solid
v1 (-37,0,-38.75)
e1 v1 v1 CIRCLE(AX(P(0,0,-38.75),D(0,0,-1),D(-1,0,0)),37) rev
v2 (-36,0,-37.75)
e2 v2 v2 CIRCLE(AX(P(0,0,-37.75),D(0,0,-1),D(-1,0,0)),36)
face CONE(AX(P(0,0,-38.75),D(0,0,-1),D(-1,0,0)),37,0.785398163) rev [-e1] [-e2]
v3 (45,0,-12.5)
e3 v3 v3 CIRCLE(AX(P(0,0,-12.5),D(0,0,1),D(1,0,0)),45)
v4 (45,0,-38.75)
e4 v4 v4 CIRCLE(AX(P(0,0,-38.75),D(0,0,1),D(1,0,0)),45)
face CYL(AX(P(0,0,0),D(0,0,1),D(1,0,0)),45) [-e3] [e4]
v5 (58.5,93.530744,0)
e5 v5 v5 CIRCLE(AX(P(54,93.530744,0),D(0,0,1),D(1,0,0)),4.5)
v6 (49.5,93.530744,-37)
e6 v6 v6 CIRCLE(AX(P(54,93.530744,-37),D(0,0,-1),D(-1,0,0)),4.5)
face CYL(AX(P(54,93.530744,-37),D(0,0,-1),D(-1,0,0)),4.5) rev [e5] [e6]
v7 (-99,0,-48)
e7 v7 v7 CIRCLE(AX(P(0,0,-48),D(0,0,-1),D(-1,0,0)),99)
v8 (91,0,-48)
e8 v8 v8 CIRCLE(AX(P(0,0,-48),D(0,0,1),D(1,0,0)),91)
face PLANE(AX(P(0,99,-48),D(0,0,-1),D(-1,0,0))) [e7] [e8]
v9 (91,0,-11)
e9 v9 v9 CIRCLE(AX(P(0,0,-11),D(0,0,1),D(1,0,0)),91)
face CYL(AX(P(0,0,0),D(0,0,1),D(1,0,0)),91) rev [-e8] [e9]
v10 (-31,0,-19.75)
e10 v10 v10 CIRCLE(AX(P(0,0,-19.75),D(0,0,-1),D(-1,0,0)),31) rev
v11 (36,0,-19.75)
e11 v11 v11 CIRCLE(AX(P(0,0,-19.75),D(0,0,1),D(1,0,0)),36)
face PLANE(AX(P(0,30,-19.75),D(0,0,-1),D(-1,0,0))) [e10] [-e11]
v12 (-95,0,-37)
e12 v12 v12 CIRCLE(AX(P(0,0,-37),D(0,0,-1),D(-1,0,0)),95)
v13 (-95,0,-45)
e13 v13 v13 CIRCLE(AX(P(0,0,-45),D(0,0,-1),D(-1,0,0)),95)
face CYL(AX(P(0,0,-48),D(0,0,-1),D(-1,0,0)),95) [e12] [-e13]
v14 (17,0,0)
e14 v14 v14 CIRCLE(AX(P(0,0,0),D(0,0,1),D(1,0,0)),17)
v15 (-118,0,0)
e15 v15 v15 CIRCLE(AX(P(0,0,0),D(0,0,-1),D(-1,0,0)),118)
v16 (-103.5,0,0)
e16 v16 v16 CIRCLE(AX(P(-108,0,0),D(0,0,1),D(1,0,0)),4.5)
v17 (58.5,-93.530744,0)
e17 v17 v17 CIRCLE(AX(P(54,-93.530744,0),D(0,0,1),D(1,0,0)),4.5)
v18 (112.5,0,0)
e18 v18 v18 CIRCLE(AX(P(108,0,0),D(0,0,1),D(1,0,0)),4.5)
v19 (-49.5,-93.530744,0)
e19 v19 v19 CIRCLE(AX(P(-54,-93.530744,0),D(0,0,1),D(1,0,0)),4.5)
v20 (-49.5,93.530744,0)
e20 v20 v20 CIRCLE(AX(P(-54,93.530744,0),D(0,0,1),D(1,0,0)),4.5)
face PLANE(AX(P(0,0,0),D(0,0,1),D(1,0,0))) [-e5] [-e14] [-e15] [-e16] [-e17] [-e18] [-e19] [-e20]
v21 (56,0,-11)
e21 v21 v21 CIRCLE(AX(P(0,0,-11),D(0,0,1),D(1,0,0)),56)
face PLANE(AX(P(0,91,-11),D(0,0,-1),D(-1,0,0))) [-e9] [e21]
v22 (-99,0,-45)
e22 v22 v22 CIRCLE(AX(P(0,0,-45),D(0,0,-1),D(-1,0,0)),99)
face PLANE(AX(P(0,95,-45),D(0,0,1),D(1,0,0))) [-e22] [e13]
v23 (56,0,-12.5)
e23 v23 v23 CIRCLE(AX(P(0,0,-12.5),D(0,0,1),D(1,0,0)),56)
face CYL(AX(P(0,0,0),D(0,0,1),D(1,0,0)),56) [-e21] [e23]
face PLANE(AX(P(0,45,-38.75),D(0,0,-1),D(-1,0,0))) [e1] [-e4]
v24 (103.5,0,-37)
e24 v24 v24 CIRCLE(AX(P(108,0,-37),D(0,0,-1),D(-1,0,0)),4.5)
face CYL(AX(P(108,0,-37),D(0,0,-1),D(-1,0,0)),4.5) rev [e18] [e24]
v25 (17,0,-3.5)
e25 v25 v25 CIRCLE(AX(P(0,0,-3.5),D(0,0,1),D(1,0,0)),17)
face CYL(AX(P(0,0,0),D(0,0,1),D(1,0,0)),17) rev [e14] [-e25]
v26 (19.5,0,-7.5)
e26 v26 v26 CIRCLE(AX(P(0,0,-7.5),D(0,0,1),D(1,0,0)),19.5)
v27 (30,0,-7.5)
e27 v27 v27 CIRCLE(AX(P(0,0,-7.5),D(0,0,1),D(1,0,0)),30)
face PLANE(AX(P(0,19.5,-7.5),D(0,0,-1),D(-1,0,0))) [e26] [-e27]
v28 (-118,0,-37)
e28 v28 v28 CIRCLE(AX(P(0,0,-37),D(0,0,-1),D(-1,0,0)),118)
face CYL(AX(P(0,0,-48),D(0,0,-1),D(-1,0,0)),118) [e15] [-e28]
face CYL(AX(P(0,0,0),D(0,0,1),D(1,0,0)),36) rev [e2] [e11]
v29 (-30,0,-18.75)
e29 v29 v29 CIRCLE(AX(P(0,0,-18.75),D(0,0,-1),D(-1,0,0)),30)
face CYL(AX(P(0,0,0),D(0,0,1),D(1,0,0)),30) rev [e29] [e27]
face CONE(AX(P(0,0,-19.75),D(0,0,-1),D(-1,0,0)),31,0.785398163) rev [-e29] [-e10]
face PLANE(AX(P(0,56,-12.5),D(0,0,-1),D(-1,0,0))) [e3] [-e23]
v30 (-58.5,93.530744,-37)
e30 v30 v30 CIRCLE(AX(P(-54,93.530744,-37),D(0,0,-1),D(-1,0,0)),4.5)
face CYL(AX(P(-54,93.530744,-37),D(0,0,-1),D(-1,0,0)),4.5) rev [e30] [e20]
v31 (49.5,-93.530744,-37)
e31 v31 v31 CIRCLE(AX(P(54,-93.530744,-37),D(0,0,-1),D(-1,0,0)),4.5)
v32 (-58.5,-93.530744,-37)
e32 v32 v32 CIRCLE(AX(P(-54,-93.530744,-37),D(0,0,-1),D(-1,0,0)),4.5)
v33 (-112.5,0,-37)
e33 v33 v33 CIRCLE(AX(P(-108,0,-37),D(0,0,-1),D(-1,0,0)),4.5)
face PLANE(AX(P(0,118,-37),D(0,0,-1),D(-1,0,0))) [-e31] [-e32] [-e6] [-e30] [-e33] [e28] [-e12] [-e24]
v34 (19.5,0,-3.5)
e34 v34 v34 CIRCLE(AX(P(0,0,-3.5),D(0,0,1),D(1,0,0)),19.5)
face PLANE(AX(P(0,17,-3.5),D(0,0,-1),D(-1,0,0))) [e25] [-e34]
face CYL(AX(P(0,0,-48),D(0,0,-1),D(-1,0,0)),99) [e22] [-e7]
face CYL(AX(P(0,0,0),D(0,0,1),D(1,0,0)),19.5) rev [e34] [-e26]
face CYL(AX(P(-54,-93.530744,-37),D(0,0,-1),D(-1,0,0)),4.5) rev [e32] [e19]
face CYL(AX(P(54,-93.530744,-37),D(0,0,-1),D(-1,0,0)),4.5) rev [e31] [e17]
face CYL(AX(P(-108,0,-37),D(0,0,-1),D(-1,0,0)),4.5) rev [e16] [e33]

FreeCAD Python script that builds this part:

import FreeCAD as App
import Part
import Sketcher
Q = App.Units.Quantity


def edges_at(feature, points):
    """Names of the edges that pass closest to the given points."""
    edges = feature.Shape.Edges
    near = lambda p: min(range(len(edges)), key=lambda i: edges[i].distToShape(Part.Vertex(*p))[0])
    return sorted({f"Edge{near(p) + 1}" for p in points})


def add_polygon(sketch, points):
    """Adds a closed chain of lines whose ends are joined by coincident constraints."""
    first, n = sketch.GeometryCount, len(points)
    for a, b in zip(points, points[1:] + points[:1]):
        sketch.addGeometry(Part.LineSegment(App.Vector(*a, 0), App.Vector(*b, 0)), False)
    for i in range(n):
        sketch.addConstraint(Sketcher.Constraint("Coincident", first + i, 2, first + (i + 1) % n, 1))

doc = App.newDocument("Part")
body = doc.addObject("PartDesign::Body", "Body")

sketch1 = body.newObject("Sketcher::SketchObject", "Sketch")
sketch1.AttachmentSupport = (doc.getObject("YZ_Plane"), [""])
sketch1.MapMode = "FlatFace"
add_polygon(sketch1, [(118, 0), (0, 0), (0, -48), (99, -48), (99, -45), (95, -45), (95, -37), (118, -37)])
sketch1.addConstraint([
    Sketcher.Constraint("Horizontal", 0),
    Sketcher.Constraint("Vertical", 1),
    Sketcher.Constraint("Horizontal", 2),
    Sketcher.Constraint("Vertical", 3),
    Sketcher.Constraint("Horizontal", 4),
    Sketcher.Constraint("Vertical", 5),
    Sketcher.Constraint("Horizontal", 6),
    Sketcher.Constraint("Vertical", 7),
    Sketcher.Constraint("Coincident", 0, 2, -1, 1),
    Sketcher.Constraint("DistanceX", 0, 2, 0, 1, Q("118 mm")),
    Sketcher.Constraint("DistanceX", 2, 1, 2, 2, Q("99 mm")),
    Sketcher.Constraint("DistanceX", 4, 2, 4, 1, Q("4 mm")),
    Sketcher.Constraint("DistanceY", 1, 2, 1, 1, Q("48 mm")),
    Sketcher.Constraint("DistanceY", 3, 1, 3, 2, Q("3 mm")),
    Sketcher.Constraint("DistanceY", 5, 1, 5, 2, Q("8 mm")),
])
revolution = body.newObject("PartDesign::Revolution", "Revolution")
revolution.Profile = sketch1
revolution.ReferenceAxis = (sketch1, ["V_Axis"])
revolution.Angle = 360

sketch2 = body.newObject("Sketcher::SketchObject", "Sketch001")
sketch2.AttachmentSupport = (doc.getObject("YZ_Plane"), [""])
sketch2.MapMode = "FlatFace"
add_polygon(sketch2, [(0, -48), (91, -48), (91, -11), (56, -11), (56, -12.5), (45, -12.5), (45, -38.8), (0, -38.8)])
sketch2.addConstraint([
    Sketcher.Constraint("Horizontal", 0),
    Sketcher.Constraint("Vertical", 1),
    Sketcher.Constraint("Horizontal", 2),
    Sketcher.Constraint("Vertical", 3),
    Sketcher.Constraint("Horizontal", 4),
    Sketcher.Constraint("Vertical", 5),
    Sketcher.Constraint("Horizontal", 6),
    Sketcher.Constraint("Vertical", 7),
    Sketcher.Constraint("PointOnObject", 6, 2, -2),
    Sketcher.Constraint("DistanceX", 0, 1, 0, 2, Q("91 mm")),
    Sketcher.Constraint("DistanceX", 2, 2, 2, 1, Q("35 mm")),
    Sketcher.Constraint("DistanceX", 4, 2, 4, 1, Q("11 mm")),
    Sketcher.Constraint("DistanceY", 1, 1, 1, 2, Q("37 mm")),
    Sketcher.Constraint("DistanceY", 3, 2, 3, 1, Q("1.5 mm")),
    Sketcher.Constraint("DistanceY", 0, 2, -1, 1, Q("48 mm")),
    Sketcher.Constraint("DistanceY", 5, 2, 5, 1, Q("26.25 mm")),
])
groove = body.newObject("PartDesign::Groove", "Groove")
groove.Profile = sketch2
groove.ReferenceAxis = (sketch2, ["V_Axis"])
groove.Angle = 360

sketch3 = body.newObject("Sketcher::SketchObject", "Sketch002")
sketch3.AttachmentSupport = (doc.getObject("YZ_Plane"), [""])
sketch3.MapMode = "FlatFace"
add_polygon(sketch3, [(17, 0), (0, 0), (0, -38.8), (36, -38.8), (36, -19.8), (30, -19.8), (30, -7.5), (19.5, -7.5), (19.5, -3.5), (17, -3.5)])
sketch3.addConstraint([
    Sketcher.Constraint("Horizontal", 0),
    Sketcher.Constraint("Vertical", 1),
    Sketcher.Constraint("Horizontal", 2),
    Sketcher.Constraint("Vertical", 3),
    Sketcher.Constraint("Horizontal", 4),
    Sketcher.Constraint("Vertical", 5),
    Sketcher.Constraint("Horizontal", 6),
    Sketcher.Constraint("Vertical", 7),
    Sketcher.Constraint("Horizontal", 8),
    Sketcher.Constraint("Vertical", 9),
    Sketcher.Constraint("Coincident", 0, 2, -1, 1),
    Sketcher.Constraint("DistanceX", 0, 2, 0, 1, Q("17 mm")),
    Sketcher.Constraint("DistanceX", 2, 1, 2, 2, Q("36 mm")),
    Sketcher.Constraint("DistanceX", 4, 2, 4, 1, Q("6 mm")),
    Sketcher.Constraint("DistanceY", 3, 1, 3, 2, Q("19 mm")),
    Sketcher.Constraint("DistanceY", 7, 1, 7, 2, Q("4 mm")),
    Sketcher.Constraint("DistanceX", 6, 2, 6, 1, Q("10.5 mm")),
    Sketcher.Constraint("DistanceY", 9, 1, 9, 2, Q("3.5 mm")),
    Sketcher.Constraint("DistanceY", 1, 2, 1, 1, Q("38.75 mm")),
])
groove2 = body.newObject("PartDesign::Groove", "Groove001")
groove2.Profile = sketch3
groove2.ReferenceAxis = (sketch3, ["V_Axis"])
groove2.Angle = 360

sketch4 = body.newObject("Sketcher::SketchObject", "Sketch003")
sketch4.AttachmentSupport = (doc.getObject("XY_Plane"), [""])
sketch4.MapMode = "FlatFace"
sketch4.AttachmentOffset = App.Placement(App.Vector(0, 0, -37), App.Rotation())
sketch4.addGeometry([
    Part.Circle(App.Vector(-54, 93.5, 0), App.Vector(0, 0, 1), 4.5),
    Part.Circle(App.Vector(-108, 0, 0), App.Vector(0, 0, 1), 4.5),
    Part.Circle(App.Vector(-54, -93.5, 0), App.Vector(0, 0, 1), 4.5),
    Part.Circle(App.Vector(54, -93.5, 0), App.Vector(0, 0, 1), 4.5),
    Part.Circle(App.Vector(108, 0, 0), App.Vector(0, 0, 1), 4.5),
    Part.Circle(App.Vector(54, 93.5, 0), App.Vector(0, 0, 1), 4.5),
], False)
sketch4.addConstraint([
    Sketcher.Constraint("Equal", 0, 1),
    Sketcher.Constraint("Equal", 1, 2),
    Sketcher.Constraint("Equal", 2, 3),
    Sketcher.Constraint("Equal", 3, 4),
    Sketcher.Constraint("Equal", 4, 5),
    Sketcher.Constraint("Symmetric", 0, 3, 3, 3, -1, 1),
    Sketcher.Constraint("Symmetric", 1, 3, 4, 3, -1, 1),
    Sketcher.Constraint("Symmetric", 2, 3, 5, 3, -1, 1),
    Sketcher.Constraint("Symmetric", 2, 3, 3, 3, -2),
    Sketcher.Constraint("PointOnObject", 1, 3, -1),
    Sketcher.Constraint("Diameter", 0, Q("9 mm")),
    Sketcher.Constraint("DistanceX", 0, 3, -1, 1, Q("54 mm")),
    Sketcher.Constraint("DistanceX", 1, 3, -1, 1, Q("108 mm")),
    Sketcher.Constraint("DistanceY", -1, 1, 0, 3, Q("93.530744 mm")),
])
doc.recompute()
hole = body.newObject("PartDesign::Hole", "Hole")
hole.Profile = sketch4
hole.ThreadType = "None"
hole.Diameter = 9
hole.DepthType = "ThroughAll"
hole.Reversed = True
doc.recompute()

chamfer = body.newObject("PartDesign::Chamfer", "Chamfer")
chamfer.Base = (hole, edges_at(hole, [(-30, 0, -19.75), (-36, 0, -38.75)]))
chamfer.Size = 1

doc.recompute()
